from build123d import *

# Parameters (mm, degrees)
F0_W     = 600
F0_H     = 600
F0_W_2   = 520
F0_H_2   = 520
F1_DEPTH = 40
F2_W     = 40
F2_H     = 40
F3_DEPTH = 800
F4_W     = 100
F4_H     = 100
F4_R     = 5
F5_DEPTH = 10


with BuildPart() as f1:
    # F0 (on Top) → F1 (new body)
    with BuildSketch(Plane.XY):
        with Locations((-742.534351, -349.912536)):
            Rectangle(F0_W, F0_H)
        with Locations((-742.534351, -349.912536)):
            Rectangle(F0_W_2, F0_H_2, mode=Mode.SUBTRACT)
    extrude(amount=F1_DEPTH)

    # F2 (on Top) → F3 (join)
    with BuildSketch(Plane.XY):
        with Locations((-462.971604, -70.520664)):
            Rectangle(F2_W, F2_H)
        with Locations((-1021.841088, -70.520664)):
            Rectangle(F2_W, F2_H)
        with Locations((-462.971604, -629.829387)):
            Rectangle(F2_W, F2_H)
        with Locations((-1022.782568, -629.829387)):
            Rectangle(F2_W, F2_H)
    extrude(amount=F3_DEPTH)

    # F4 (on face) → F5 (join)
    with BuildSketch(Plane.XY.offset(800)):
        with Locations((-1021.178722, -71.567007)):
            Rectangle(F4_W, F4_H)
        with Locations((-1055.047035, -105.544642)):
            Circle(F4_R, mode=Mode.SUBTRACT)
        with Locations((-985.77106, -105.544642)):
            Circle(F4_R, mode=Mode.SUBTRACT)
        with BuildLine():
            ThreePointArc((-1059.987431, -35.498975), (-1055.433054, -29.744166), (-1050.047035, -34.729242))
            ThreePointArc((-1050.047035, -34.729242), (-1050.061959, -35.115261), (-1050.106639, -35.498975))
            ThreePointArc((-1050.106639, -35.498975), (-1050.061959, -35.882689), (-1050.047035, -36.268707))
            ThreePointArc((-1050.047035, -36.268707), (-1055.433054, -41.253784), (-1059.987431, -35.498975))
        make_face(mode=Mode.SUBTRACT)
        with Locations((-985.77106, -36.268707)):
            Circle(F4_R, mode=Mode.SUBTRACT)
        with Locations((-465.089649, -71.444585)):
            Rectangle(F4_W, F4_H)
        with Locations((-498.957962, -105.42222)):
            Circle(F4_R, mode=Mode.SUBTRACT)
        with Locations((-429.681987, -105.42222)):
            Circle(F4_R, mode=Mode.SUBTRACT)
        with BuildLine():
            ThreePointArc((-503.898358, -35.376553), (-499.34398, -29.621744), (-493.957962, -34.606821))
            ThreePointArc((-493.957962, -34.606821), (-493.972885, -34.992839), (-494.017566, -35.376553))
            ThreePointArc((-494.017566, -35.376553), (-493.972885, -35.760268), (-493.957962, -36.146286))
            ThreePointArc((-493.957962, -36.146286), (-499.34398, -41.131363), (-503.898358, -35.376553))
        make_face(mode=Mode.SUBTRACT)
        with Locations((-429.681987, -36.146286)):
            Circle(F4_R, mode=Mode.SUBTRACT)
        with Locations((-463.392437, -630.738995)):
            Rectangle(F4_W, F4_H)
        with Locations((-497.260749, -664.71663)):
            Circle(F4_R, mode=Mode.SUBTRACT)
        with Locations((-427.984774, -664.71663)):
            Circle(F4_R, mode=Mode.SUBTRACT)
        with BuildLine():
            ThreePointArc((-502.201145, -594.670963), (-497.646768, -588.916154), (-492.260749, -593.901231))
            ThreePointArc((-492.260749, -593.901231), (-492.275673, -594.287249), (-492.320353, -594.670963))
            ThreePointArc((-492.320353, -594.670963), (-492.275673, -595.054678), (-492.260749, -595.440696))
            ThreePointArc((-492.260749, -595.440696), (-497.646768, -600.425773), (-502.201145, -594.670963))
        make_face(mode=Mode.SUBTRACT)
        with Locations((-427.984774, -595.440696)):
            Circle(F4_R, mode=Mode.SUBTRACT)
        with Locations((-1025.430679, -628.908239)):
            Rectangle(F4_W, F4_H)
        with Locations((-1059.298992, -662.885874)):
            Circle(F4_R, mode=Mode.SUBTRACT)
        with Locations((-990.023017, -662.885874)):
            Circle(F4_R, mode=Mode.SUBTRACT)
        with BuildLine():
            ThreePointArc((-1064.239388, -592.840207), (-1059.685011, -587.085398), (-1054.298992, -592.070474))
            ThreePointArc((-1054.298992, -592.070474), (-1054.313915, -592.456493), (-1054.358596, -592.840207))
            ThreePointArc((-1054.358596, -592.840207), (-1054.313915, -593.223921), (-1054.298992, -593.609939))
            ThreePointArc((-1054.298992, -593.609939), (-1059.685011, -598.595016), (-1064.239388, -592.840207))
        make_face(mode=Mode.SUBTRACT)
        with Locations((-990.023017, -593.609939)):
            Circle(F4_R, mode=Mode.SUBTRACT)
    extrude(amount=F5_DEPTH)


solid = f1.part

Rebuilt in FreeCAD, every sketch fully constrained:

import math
import FreeCAD as App
import Part
import Sketcher

doc = App.newDocument("Part")
params = doc.addObject("Spreadsheet::Sheet", "Params")
for row, (alias, value) in enumerate([
    ("sketch1_width", "600 mm"),
    ("sketch1_width2", "520 mm"),
    ("pad1_length", "40 mm"),
    ("sketch2_width", "40 mm"),
    ("pad2_length", "800 mm"),
    ("sketch3_diameter", "10 mm"),
    ("sketch3_diameter2", "10 mm"),
    ("sketch3_diameter3", "10 mm"),
    ("sketch3_diameter4", "10 mm"),
    ("sketch3_diameter5", "10 mm"),
    ("pad3_length", "10 mm"),
], start=1):
    params.set(f"A{row}", alias)
    params.set(f"B{row}", "=" + value)
    params.setAlias(f"B{row}", alias)

body = doc.addObject("PartDesign::Body", "Body")

sketch1 = doc.addObject("Sketcher::SketchObject", "Sketch")
body.addObject(sketch1)
sketch1.AttachmentSupport = (doc.XY_Plane, [""])
sketch1.MapMode = "FlatFace"
sketch1.addGeometry(Part.LineSegment(App.Vector(-1043, -50, 0), App.Vector(-1043, -650, 0)), False)
sketch1.addGeometry(Part.LineSegment(App.Vector(-1043, -650, 0), App.Vector(-443, -650, 0)), False)
sketch1.addGeometry(Part.LineSegment(App.Vector(-443, -650, 0), App.Vector(-443, -50, 0)), False)
sketch1.addGeometry(Part.LineSegment(App.Vector(-443, -50, 0), App.Vector(-1043, -50, 0)), False)
sketch1.addGeometry(Part.LineSegment(App.Vector(-483, -610, 0), App.Vector(-1003, -610, 0)), False)
sketch1.addGeometry(Part.LineSegment(App.Vector(-1003, -610, 0), App.Vector(-1003, -90, 0)), False)
sketch1.addGeometry(Part.LineSegment(App.Vector(-1003, -90, 0), App.Vector(-483, -90, 0)), False)
sketch1.addGeometry(Part.LineSegment(App.Vector(-483, -90, 0), App.Vector(-483, -610, 0)), False)
sketch1.addConstraint(Sketcher.Constraint("Coincident", 0, 2, 1, 1))
sketch1.addConstraint(Sketcher.Constraint("Coincident", 1, 2, 2, 1))
sketch1.addConstraint(Sketcher.Constraint("Coincident", 2, 2, 3, 1))
sketch1.addConstraint(Sketcher.Constraint("Coincident", 3, 2, 0, 1))
sketch1.addConstraint(Sketcher.Constraint("Coincident", 4, 2, 5, 1))
sketch1.addConstraint(Sketcher.Constraint("Coincident", 5, 2, 6, 1))
sketch1.addConstraint(Sketcher.Constraint("Coincident", 6, 2, 7, 1))
sketch1.addConstraint(Sketcher.Constraint("Coincident", 7, 2, 4, 1))
sketch1.addConstraint(Sketcher.Constraint("Vertical", 0))
sketch1.addConstraint(Sketcher.Constraint("Horizontal", 1))
sketch1.addConstraint(Sketcher.Constraint("Vertical", 2))
sketch1.addConstraint(Sketcher.Constraint("Horizontal", 3))
sketch1.addConstraint(Sketcher.Constraint("Horizontal", 4))
sketch1.addConstraint(Sketcher.Constraint("Vertical", 5))
sketch1.addConstraint(Sketcher.Constraint("Horizontal", 6))
sketch1.addConstraint(Sketcher.Constraint("Vertical", 7))
sketch1.addConstraint(Sketcher.Constraint("Equal", 3, 0))
sketch1.addConstraint(Sketcher.Constraint("Equal", 6, 5))
sketch1.addConstraint(Sketcher.Constraint("DistanceX", 1, 1, 1, 2, 600.0))
sketch1.addConstraint(Sketcher.Constraint("DistanceX", 4, 2, 4, 1, 520.0))
sketch1.addConstraint(Sketcher.Constraint("DistanceX", 0, 2, 4, 2, 40.0))
sketch1.addConstraint(Sketcher.Constraint("DistanceY", 0, 2, 4, 2, 40.0))
sketch1.addConstraint(Sketcher.Constraint("DistanceX", 0, 2, -1, 1, 1042.534351))
sketch1.addConstraint(Sketcher.Constraint("DistanceY", 0, 2, -1, 1, 649.912536))
sketch1.setExpression("Constraints[18]", "Params.sketch1_width")
sketch1.setExpression("Constraints[19]", "Params.sketch1_width2")
pad1 = doc.addObject("PartDesign::Pad", "Pad")
body.addObject(pad1)
pad1.Profile = sketch1
pad1.setExpression("Length", "Params.pad1_length")

sketch2 = doc.addObject("Sketcher::SketchObject", "Sketch001")
body.addObject(sketch2)
sketch2.AttachmentSupport = (doc.XY_Plane, [""])
sketch2.MapMode = "FlatFace"
sketch2.addGeometry(Part.LineSegment(App.Vector(-483, -51, 0), App.Vector(-483, -91, 0)), False)
sketch2.addGeometry(Part.LineSegment(App.Vector(-483, -91, 0), App.Vector(-443, -91, 0)), False)
sketch2.addGeometry(Part.LineSegment(App.Vector(-443, -91, 0), App.Vector(-443, -51, 0)), False)
sketch2.addGeometry(Part.LineSegment(App.Vector(-443, -51, 0), App.Vector(-483, -51, 0)), False)
sketch2.addGeometry(Part.LineSegment(App.Vector(-1042, -51, 0), App.Vector(-1042, -91, 0)), False)
sketch2.addGeometry(Part.LineSegment(App.Vector(-1042, -91, 0), App.Vector(-1002, -91, 0)), False)
sketch2.addGeometry(Part.LineSegment(App.Vector(-1002, -91, 0), App.Vector(-1002, -51, 0)), False)
sketch2.addGeometry(Part.LineSegment(App.Vector(-1002, -51, 0), App.Vector(-1042, -51, 0)), False)
sketch2.addGeometry(Part.LineSegment(App.Vector(-483, -610, 0), App.Vector(-483, -650, 0)), False)
sketch2.addGeometry(Part.LineSegment(App.Vector(-483, -650, 0), App.Vector(-443, -650, 0)), False)
sketch2.addGeometry(Part.LineSegment(App.Vector(-443, -650, 0), App.Vector(-443, -610, 0)), False)
sketch2.addGeometry(Part.LineSegment(App.Vector(-443, -610, 0), App.Vector(-483, -610, 0)), False)
sketch2.addGeometry(Part.LineSegment(App.Vector(-1043, -610, 0), App.Vector(-1043, -650, 0)), False)
sketch2.addGeometry(Part.LineSegment(App.Vector(-1043, -650, 0), App.Vector(-1003, -650, 0)), False)
sketch2.addGeometry(Part.LineSegment(App.Vector(-1003, -650, 0), App.Vector(-1003, -610, 0)), False)
sketch2.addGeometry(Part.LineSegment(App.Vector(-1003, -610, 0), App.Vector(-1043, -610, 0)), False)
sketch2.addConstraint(Sketcher.Constraint("Coincident", 0, 2, 1, 1))
sketch2.addConstraint(Sketcher.Constraint("Coincident", 1, 2, 2, 1))
sketch2.addConstraint(Sketcher.Constraint("Coincident", 2, 2, 3, 1))
sketch2.addConstraint(Sketcher.Constraint("Coincident", 3, 2, 0, 1))
sketch2.addConstraint(Sketcher.Constraint("Coincident", 4, 2, 5, 1))
sketch2.addConstraint(Sketcher.Constraint("Coincident", 5, 2, 6, 1))
sketch2.addConstraint(Sketcher.Constraint("Coincident", 6, 2, 7, 1))
sketch2.addConstraint(Sketcher.Constraint("Coincident", 7, 2, 4, 1))
sketch2.addConstraint(Sketcher.Constraint("Coincident", 8, 2, 9, 1))
sketch2.addConstraint(Sketcher.Constraint("Coincident", 9, 2, 10, 1))
sketch2.addConstraint(Sketcher.Constraint("Coincident", 10, 2, 11, 1))
sketch2.addConstraint(Sketcher.Constraint("Coincident", 11, 2, 8, 1))
sketch2.addConstraint(Sketcher.Constraint("Coincident", 12, 2, 13, 1))
sketch2.addConstraint(Sketcher.Constraint("Coincident", 13, 2, 14, 1))
sketch2.addConstraint(Sketcher.Constraint("Coincident", 14, 2, 15, 1))
sketch2.addConstraint(Sketcher.Constraint("Coincident", 15, 2, 12, 1))
sketch2.addConstraint(Sketcher.Constraint("Vertical", 0))
sketch2.addConstraint(Sketcher.Constraint("Horizontal", 1))
sketch2.addConstraint(Sketcher.Constraint("Vertical", 2))
sketch2.addConstraint(Sketcher.Constraint("Horizontal", 3))
sketch2.addConstraint(Sketcher.Constraint("Vertical", 4))
sketch2.addConstraint(Sketcher.Constraint("Horizontal", 5))
sketch2.addConstraint(Sketcher.Constraint("Vertical", 6))
sketch2.addConstraint(Sketcher.Constraint("Horizontal", 7))
sketch2.addConstraint(Sketcher.Constraint("Vertical", 8))
sketch2.addConstraint(Sketcher.Constraint("Horizontal", 9))
sketch2.addConstraint(Sketcher.Constraint("Vertical", 10))
sketch2.addConstraint(Sketcher.Constraint("Horizontal", 11))
sketch2.addConstraint(Sketcher.Constraint("Vertical", 12))
sketch2.addConstraint(Sketcher.Constraint("Horizontal", 13))
sketch2.addConstraint(Sketcher.Constraint("Vertical", 14))
sketch2.addConstraint(Sketcher.Constraint("Horizontal", 15))
sketch2.addConstraint(Sketcher.Constraint("Horizontal", 1, 2, 4, 2))
sketch2.addConstraint(Sketcher.Constraint("Horizontal", 3, 2, 6, 2))
sketch2.addConstraint(Sketcher.Constraint("Horizontal", 9, 2, 12, 2))
sketch2.addConstraint(Sketcher.Constraint("Horizontal", 11, 2, 14, 2))
sketch2.addConstraint(Sketcher.Constraint("Vertical", 3, 2, 8, 2))
sketch2.addConstraint(Sketcher.Constraint("Vertical", 2, 2, 9, 2))
sketch2.addConstraint(Sketcher.Constraint("Equal", 3, 5))
sketch2.addConstraint(Sketcher.Constraint("Equal", 11, 13))
sketch2.addConstraint(Sketcher.Constraint("Equal", 15, 0))
sketch2.addConstraint(Sketcher.Constraint("Equal", 6, 8))
sketch2.addConstraint(Sketcher.Constraint("DistanceX", 1, 1, 1, 2, 40.0))
sketch2.addConstraint(Sketcher.Constraint("DistanceX", 4, 2, -1, 1, 1041.841088))
sketch2.addConstraint(Sketcher.Constraint("DistanceX", 12, 2, -1, 1, 1042.782568))
sketch2.addConstraint(Sketcher.Constraint("DistanceX", 0, 2, -1, 1, 482.971604))
sketch2.addConstraint(Sketcher.Constraint("DistanceY", 0, 2, -1, 1, 90.520664))
sketch2.addConstraint(Sketcher.Constraint("DistanceY", 8, 2, -1, 1, 649.829387))
sketch2.setExpression("Constraints[42]", "Params.sketch2_width")
pad2 = doc.addObject("PartDesign::Pad", "Pad001")
body.addObject(pad2)
pad2.Profile = sketch2
pad2.setExpression("Length", "Params.pad2_length")

sketch3 = doc.addObject("Sketcher::SketchObject", "Sketch002")
body.addObject(sketch3)
sketch3.AttachmentSupport = (doc.XY_Plane, [""])
sketch3.MapMode = "FlatFace"
sketch3.AttachmentOffset = App.Placement(App.Vector(0, 0, 800), App.Rotation())
sketch3.addGeometry(Part.LineSegment(App.Vector(-1071.178722, -21.567007, 0), App.Vector(-1071.178722, -121.567007, 0)), False)
sketch3.addGeometry(Part.LineSegment(App.Vector(-1071.178722, -121.567007, 0), App.Vector(-971.178722, -121.567007, 0)), False)
sketch3.addGeometry(Part.LineSegment(App.Vector(-971.178722, -121.567007, 0), App.Vector(-971.178722, -21.567007, 0)), False)
sketch3.addGeometry(Part.LineSegment(App.Vector(-971.178722, -21.567007, 0), App.Vector(-1071.178722, -21.567007, 0)), False)
sketch3.addGeometry(Part.Circle(App.Vector(-1055.047035, -105.544642, 0), App.Vector(0, 0, 1), 5), False)
sketch3.addGeometry(Part.Circle(App.Vector(-985.77106, -105.544642, 0), App.Vector(0, 0, 1), 5), False)
sketch3.addGeometry(Part.ArcOfCircle(Part.Circle(App.Vector(-1055.047035, -36.268707, 0), App.Vector(0, 0, 1), 5), math.radians(171.1443), math.radians(360.000004)), False)
sketch3.addGeometry(Part.ArcOfCircle(Part.Circle(App.Vector(-1055.047035, -34.729243, 0), App.Vector(0, 0, 1), 5), math.radians(0.000008), math.radians(188.8557)), False)
sketch3.addGeometry(Part.ArcOfCircle(Part.Circle(App.Vector(-1055.047281, -34.729224, 0), App.Vector(0, 0, 1), 5.000246), math.radians(-8.855478), math.radians(-0.000207)), False)
sketch3.addGeometry(Part.ArcOfCircle(Part.Circle(App.Vector(-1055.047281, -36.268726, 0), App.Vector(0, 0, 1), 5.000246), math.radians(0.000219), math.radians(8.855478)), False)
sketch3.addGeometry(Part.Circle(App.Vector(-985.77106, -36.268707, 0), App.Vector(0, 0, 1), 5), False)
sketch3.addGeometry(Part.LineSegment(App.Vector(-515.089649, -21.444585, 0), App.Vector(-515.089649, -121.444585, 0)), False)
sketch3.addGeometry(Part.LineSegment(App.Vector(-515.089649, -121.444585, 0), App.Vector(-415.089649, -121.444585, 0)), False)
sketch3.addGeometry(Part.LineSegment(App.Vector(-415.089649, -121.444585, 0), App.Vector(-415.089649, -21.444585, 0)), False)
sketch3.addGeometry(Part.LineSegment(App.Vector(-415.089649, -21.444585, 0), App.Vector(-515.089649, -21.444585, 0)), False)
sketch3.addGeometry(Part.Circle(App.Vector(-498.957962, -105.42222, 0), App.Vector(0, 0, 1), 5), False)
sketch3.addGeometry(Part.Circle(App.Vector(-429.681987, -105.42222, 0), App.Vector(0, 0, 1), 5), False)
sketch3.addGeometry(Part.ArcOfCircle(Part.Circle(App.Vector(-498.957962, -36.146286, 0), App.Vector(0, 0, 1), 5), math.radians(171.144291), math.radians(360.000002)), False)
sketch3.addGeometry(Part.ArcOfCircle(Part.Circle(App.Vector(-498.957962, -34.606821, 0), App.Vector(0, 0, 1), 5), math.radians(-0.000003), math.radians(188.855699)), False)
sketch3.addGeometry(Part.ArcOfCircle(Part.Circle(App.Vector(-498.957875, -34.606828, 0), App.Vector(0, 0, 1), 4.999913), math.radians(-8.855773), math.radians(0.000077)), False)
sketch3.addGeometry(Part.ArcOfCircle(Part.Circle(App.Vector(-498.957901, -36.14628, 0), App.Vector(0, 0, 1), 4.999939), math.radians(-0.000066), math.radians(8.85575)), False)
sketch3.addGeometry(Part.Circle(App.Vector(-429.681987, -36.146286, 0), App.Vector(0, 0, 1), 5), False)
sketch3.addGeometry(Part.LineSegment(App.Vector(-513.392437, -580.738995, 0), App.Vector(-513.392437, -680.738995, 0)), False)
sketch3.addGeometry(Part.LineSegment(App.Vector(-513.392437, -680.738995, 0), App.Vector(-413.392437, -680.738995, 0)), False)
sketch3.addGeometry(Part.LineSegment(App.Vector(-413.392437, -680.738995, 0), App.Vector(-413.392437, -580.738995, 0)), False)
sketch3.addGeometry(Part.LineSegment(App.Vector(-413.392437, -580.738995, 0), App.Vector(-513.392437, -580.738995, 0)), False)
sketch3.addGeometry(Part.Circle(App.Vector(-497.260749, -664.71663, 0), App.Vector(0, 0, 1), 5), False)
sketch3.addGeometry(Part.Circle(App.Vector(-427.984774, -664.71663, 0), App.Vector(0, 0, 1), 5), False)
sketch3.addGeometry(Part.ArcOfCircle(Part.Circle(App.Vector(-497.260749, -595.440696, 0), App.Vector(0, 0, 1), 5), math.radians(171.14429), math.radians(360.000003)), False)
sketch3.addGeometry(Part.ArcOfCircle(Part.Circle(App.Vector(-497.260749, -593.901231, 0), App.Vector(0, 0, 1), 5), math.radians(-0.000004), math.radians(188.8557)), False)
sketch3.addGeometry(Part.ArcOfCircle(Part.Circle(App.Vector(-497.260995, -593.901212, 0), App.Vector(0, 0, 1), 5.000246), math.radians(-8.855478), math.radians(-0.000219)), False)
sketch3.addGeometry(Part.ArcOfCircle(Part.Circle(App.Vector(-497.261021, -595.440716, 0), App.Vector(0, 0, 1), 5.000272), math.radians(0.00023), math.radians(8.855455)), False)
sketch3.addGeometry(Part.Circle(App.Vector(-427.984774, -595.440696, 0), App.Vector(0, 0, 1), 5), False)
sketch3.addGeometry(Part.LineSegment(App.Vector(-1075.430679, -578.908239, 0), App.Vector(-1075.430679, -678.908239, 0)), False)
sketch3.addGeometry(Part.LineSegment(App.Vector(-1075.430679, -678.908239, 0), App.Vector(-975.430679, -678.908239, 0)), False)
sketch3.addGeometry(Part.LineSegment(App.Vector(-975.430679, -678.908239, 0), App.Vector(-975.430679, -578.908239, 0)), False)
sketch3.addGeometry(Part.LineSegment(App.Vector(-975.430679, -578.908239, 0), App.Vector(-1075.430679, -578.908239, 0)), False)
sketch3.addGeometry(Part.Circle(App.Vector(-1059.298992, -662.885874, 0), App.Vector(0, 0, 1), 5), False)
sketch3.addGeometry(Part.Circle(App.Vector(-990.023017, -662.885874, 0), App.Vector(0, 0, 1), 5), False)
sketch3.addGeometry(Part.ArcOfCircle(Part.Circle(App.Vector(-1059.298992, -593.609939, 0), App.Vector(0, 0, 1), 5), math.radians(171.1443), math.radians(360.000004)), False)
sketch3.addGeometry(Part.ArcOfCircle(Part.Circle(App.Vector(-1059.298992, -592.070475, 0), App.Vector(0, 0, 1), 5), math.radians(0.000008), math.radians(188.8557)), False)
sketch3.addGeometry(Part.ArcOfCircle(Part.Circle(App.Vector(-1059.298905, -592.070482, 0), App.Vector(0, 0, 1), 4.999913), math.radians(-8.855773), math.radians(0.000088)), False)
sketch3.addGeometry(Part.ArcOfCircle(Part.Circle(App.Vector(-1059.298905, -593.609932, 0), App.Vector(0, 0, 1), 4.999913), math.radians(-0.000077), math.radians(8.855773)), False)
sketch3.addGeometry(Part.Circle(App.Vector(-990.023017, -593.609939, 0), App.Vector(0, 0, 1), 5), False)
sketch3.addConstraint(Sketcher.Constraint("Coincident", 0, 2, 1, 1))
sketch3.addConstraint(Sketcher.Constraint("Coincident", 1, 2, 2, 1))
sketch3.addConstraint(Sketcher.Constraint("Coincident", 2, 2, 3, 1))
sketch3.addConstraint(Sketcher.Constraint("Coincident", 3, 2, 0, 1))
sketch3.addConstraint(Sketcher.Constraint("Coincident", 6, 1, 7, 2))
sketch3.addConstraint(Sketcher.Constraint("Coincident", 7, 1, 8, 2))
sketch3.addConstraint(Sketcher.Constraint("Coincident", 8, 1, 9, 2))
sketch3.addConstraint(Sketcher.Constraint("Coincident", 9, 1, 6, 2))
sketch3.addConstraint(Sketcher.Constraint("Coincident", 11, 2, 12, 1))
sketch3.addConstraint(Sketcher.Constraint("Coincident", 12, 2, 13, 1))
sketch3.addConstraint(Sketcher.Constraint("Coincident", 13, 2, 14, 1))
sketch3.addConstraint(Sketcher.Constraint("Coincident", 14, 2, 11, 1))
sketch3.addConstraint(Sketcher.Constraint("Coincident", 17, 1, 18, 2))
sketch3.addConstraint(Sketcher.Constraint("Coincident", 18, 1, 19, 2))
sketch3.addConstraint(Sketcher.Constraint("Coincident", 19, 1, 20, 2))
sketch3.addConstraint(Sketcher.Constraint("Coincident", 20, 1, 17, 2))
sketch3.addConstraint(Sketcher.Constraint("Coincident", 22, 2, 23, 1))
sketch3.addConstraint(Sketcher.Constraint("Coincident", 23, 2, 24, 1))
sketch3.addConstraint(Sketcher.Constraint("Coincident", 24, 2, 25, 1))
sketch3.addConstraint(Sketcher.Constraint("Coincident", 25, 2, 22, 1))
sketch3.addConstraint(Sketcher.Constraint("Coincident", 28, 1, 29, 2))
sketch3.addConstraint(Sketcher.Constraint("Coincident", 29, 1, 30, 2))
sketch3.addConstraint(Sketcher.Constraint("Coincident", 30, 1, 31, 2))
sketch3.addConstraint(Sketcher.Constraint("Coincident", 31, 1, 28, 2))
sketch3.addConstraint(Sketcher.Constraint("Coincident", 33, 2, 34, 1))
sketch3.addConstraint(Sketcher.Constraint("Coincident", 34, 2, 35, 1))
sketch3.addConstraint(Sketcher.Constraint("Coincident", 35, 2, 36, 1))
sketch3.addConstraint(Sketcher.Constraint("Coincident", 36, 2, 33, 1))
sketch3.addConstraint(Sketcher.Constraint("Coincident", 39, 1, 40, 2))
sketch3.addConstraint(Sketcher.Constraint("Coincident", 40, 1, 41, 2))
sketch3.addConstraint(Sketcher.Constraint("Coincident", 41, 1, 42, 2))
sketch3.addConstraint(Sketcher.Constraint("Coincident", 42, 1, 39, 2))
sketch3.addConstraint(Sketcher.Constraint("Vertical", 0))
sketch3.addConstraint(Sketcher.Constraint("Horizontal", 1))
sketch3.addConstraint(Sketcher.Constraint("Vertical", 2))
sketch3.addConstraint(Sketcher.Constraint("Horizontal", 3))
sketch3.addConstraint(Sketcher.Constraint("Vertical", 11))
sketch3.addConstraint(Sketcher.Constraint("Horizontal", 12))
sketch3.addConstraint(Sketcher.Constraint("Vertical", 13))
sketch3.addConstraint(Sketcher.Constraint("Horizontal", 14))
sketch3.addConstraint(Sketcher.Constraint("Vertical", 22))
sketch3.addConstraint(Sketcher.Constraint("Horizontal", 23))
sketch3.addConstraint(Sketcher.Constraint("Vertical", 24))
sketch3.addConstraint(Sketcher.Constraint("Horizontal", 25))
sketch3.addConstraint(Sketcher.Constraint("Vertical", 33))
sketch3.addConstraint(Sketcher.Constraint("Horizontal", 34))
sketch3.addConstraint(Sketcher.Constraint("Vertical", 35))
sketch3.addConstraint(Sketcher.Constraint("Horizontal", 36))
sketch3.addConstraint(Sketcher.Constraint("Diameter", 4, 10.0))
sketch3.addConstraint(Sketcher.Constraint("Diameter", 5, 10.0))
sketch3.addConstraint(Sketcher.Constraint("Diameter", 10, 10.0))
sketch3.addConstraint(Sketcher.Constraint("Diameter", 15, 10.0))
sketch3.addConstraint(Sketcher.Constraint("Diameter", 16, 10.0))
sketch3.addConstraint(Sketcher.Constraint("Diameter", 21, 10.0))
sketch3.addConstraint(Sketcher.Constraint("Diameter", 26, 10.0))
sketch3.addConstraint(Sketcher.Constraint("Diameter", 27, 10.0))
sketch3.addConstraint(Sketcher.Constraint("Diameter", 32, 10.0))
sketch3.addConstraint(Sketcher.Constraint("Diameter", 37, 10.0))
sketch3.addConstraint(Sketcher.Constraint("Diameter", 38, 10.0))
sketch3.addConstraint(Sketcher.Constraint("Diameter", 43, 10.0))
sketch3.addConstraint(Sketcher.Constraint("Radius", 6, 5.0))
sketch3.addConstraint(Sketcher.Constraint("Radius", 7, 5.0))
sketch3.addConstraint(Sketcher.Constraint("Radius", 17, 5.0))
sketch3.addConstraint(Sketcher.Constraint("Radius", 18, 5.0))
sketch3.addConstraint(Sketcher.Constraint("Radius", 28, 5.0))
sketch3.addConstraint(Sketcher.Constraint("Radius", 29, 5.0))
sketch3.addConstraint(Sketcher.Constraint("Radius", 39, 5.0))
sketch3.addConstraint(Sketcher.Constraint("Radius", 40, 5.0))
sketch3.addConstraint(Sketcher.Constraint("DistanceX", 1, 1, 1, 2, 100.0))
sketch3.addConstraint(Sketcher.Constraint("DistanceX", 12, 1, 12, 2, 100.0))
sketch3.addConstraint(Sketcher.Constraint("DistanceX", 23, 1, 23, 2, 100.0))
sketch3.addConstraint(Sketcher.Constraint("DistanceX", 34, 1, 34, 2, 100.0))
sketch3.addConstraint(Sketcher.Constraint("DistanceY", 0, 2, 0, 1, 100.0))
sketch3.addConstraint(Sketcher.Constraint("DistanceY", 11, 2, 11, 1, 100.0))
sketch3.addConstraint(Sketcher.Constraint("DistanceY", 22, 2, 22, 1, 100.0))
sketch3.addConstraint(Sketcher.Constraint("DistanceY", 33, 2, 33, 1, 100.0))
sketch3.addConstraint(Sketcher.Constraint("DistanceX", 6, 3, 7, 1, 5.0))
sketch3.addConstraint(Sketcher.Constraint("DistanceX", 17, 3, 18, 1, 5.0))
sketch3.addConstraint(Sketcher.Constraint("DistanceX", 28, 3, 29, 1, 5.0))
sketch3.addConstraint(Sketcher.Constraint("DistanceX", 39, 3, 40, 1, 5.0))
sketch3.addConstraint(Sketcher.Constraint("Radius", 20, 4.999939))
sketch3.addConstraint(Sketcher.Constraint("Radius", 8, 5.000246))
sketch3.addConstraint(Sketcher.Constraint("Radius", 9, 5.000246))
sketch3.addConstraint(Sketcher.Constraint("Radius", 19, 4.999913))
sketch3.addConstraint(Sketcher.Constraint("Radius", 30, 5.000246))
sketch3.addConstraint(Sketcher.Constraint("Radius", 31, 5.000272))
sketch3.addConstraint(Sketcher.Constraint("Radius", 41, 4.999913))
sketch3.addConstraint(Sketcher.Constraint("Radius", 42, 4.999913))
sketch3.addConstraint(Sketcher.Constraint("DistanceX", 20, 3, -1, 1, 498.957901))
sketch3.addConstraint(Sketcher.Constraint("DistanceY", 4, 3, 7, 3, 70.815399))
sketch3.addConstraint(Sketcher.Constraint("DistanceY", 5, 3, 7, 3, 70.815399))
sketch3.addConstraint(Sketcher.Constraint("DistanceX", 5, 3, 15, 3, 486.813098))
sketch3.addConstraint(Sketcher.Constraint("DistanceX", 10, 3, 15, 3, 486.813098))
sketch3.addConstraint(Sketcher.Constraint("DistanceY", 15, 3, 18, 3, 70.815399))
sketch3.addConstraint(Sketcher.Constraint("DistanceY", 16, 3, 18, 3, 70.815399))
sketch3.addConstraint(Sketcher.Constraint("DistanceY", 26, 3, 29, 3, 70.815399))
sketch3.addConstraint(Sketcher.Constraint("DistanceY", 27, 3, 29, 3, 70.815399))
sketch3.addConstraint(Sketcher.Constraint("DistanceY", 37, 3, 40, 3, 70.815399))
sketch3.addConstraint(Sketcher.Constraint("DistanceY", 38, 3, 40, 3, 70.815399))
sketch3.addConstraint(Sketcher.Constraint("DistanceY", 0, 2, 6, 3, 85.2983))
sketch3.addConstraint(Sketcher.Constraint("DistanceY", 1, 2, 10, 3, 85.2983))
sketch3.addConstraint(Sketcher.Constraint("DistanceY", 11, 2, 17, 3, 85.298299))
sketch3.addConstraint(Sketcher.Constraint("DistanceY", 12, 2, 21, 3, 85.298299))
sketch3.addConstraint(Sketcher.Constraint("DistanceY", 22, 2, 28, 3, 85.298299))
sketch3.addConstraint(Sketcher.Constraint("DistanceY", 23, 2, 32, 3, 85.298299))
sketch3.addConstraint(Sketcher.Constraint("DistanceY", 33, 2, 39, 3, 85.2983))
sketch3.addConstraint(Sketcher.Constraint("DistanceY", 34, 2, 43, 3, 85.2983))
sketch3.addConstraint(Sketcher.Constraint("DistanceY", 4, 3, -1, 1, 105.544642))
sketch3.addConstraint(Sketcher.Constraint("DistanceX", 5, 3, -1, 1, 985.77106))
sketch3.addConstraint(Sketcher.Constraint("DistanceX", 8, 3, -1, 1, 1055.047281))
sketch3.addConstraint(Sketcher.Constraint("DistanceY", 15, 3, -1, 1, 105.42222))
sketch3.addConstraint(Sketcher.Constraint("DistanceY", 20, 3, -1, 1, 36.14628))
sketch3.addConstraint(Sketcher.Constraint("DistanceX", 26, 3, -1, 1, 497.260749))
sketch3.addConstraint(Sketcher.Constraint("DistanceY", 26, 3, -1, 1, 664.71663))
sketch3.addConstraint(Sketcher.Constraint("DistanceX", 28, 3, -1, 1, 497.260749))
sketch3.addConstraint(Sketcher.Constraint("DistanceY", 30, 3, -1, 1, 593.901212))
sketch3.addConstraint(Sketcher.Constraint("DistanceX", 37, 3, -1, 1, 1059.298992))
sketch3.addConstraint(Sketcher.Constraint("DistanceY", 39, 3, -1, 1, 593.609939))
sketch3.addConstraint(Sketcher.Constraint("DistanceY", 41, 3, -1, 1, 592.070482))
sketch3.addConstraint(Sketcher.Constraint("DistanceX", 0, 2, -1, 1, 1071.178722))
sketch3.addConstraint(Sketcher.Constraint("DistanceX", 6, 1, -1, 1, 1059.987431))
sketch3.addConstraint(Sketcher.Constraint("DistanceX", 8, 1, -1, 1, 1050.106639))
sketch3.addConstraint(Sketcher.Constraint("DistanceX", 11, 2, -1, 1, 515.089649))
sketch3.addConstraint(Sketcher.Constraint("DistanceX", 17, 1, -1, 1, 503.898358))
sketch3.addConstraint(Sketcher.Constraint("DistanceY", 18, 1, -1, 1, 34.606821))
sketch3.addConstraint(Sketcher.Constraint("DistanceY", 29, 1, -1, 1, 593.901231))
sketch3.addConstraint(Sketcher.Constraint("DistanceX", 33, 2, -1, 1, 1075.430679))
sketch3.addConstraint(Sketcher.Constraint("DistanceX", 39, 1, -1, 1, 1064.239388))
sketch3.addConstraint(Sketcher.Constraint("DistanceX", 40, 1, -1, 1, 1054.298992))
sketch3.addConstraint(Sketcher.Constraint("DistanceY", 42, 1, -1, 1, 593.609939))
sketch3.addConstraint(Sketcher.Constraint("DistanceY", 4, 3, 8, 3, 70.815418))
sketch3.addConstraint(Sketcher.Constraint("DistanceX", 4, 3, 16, 3, 625.365048))
sketch3.addConstraint(Sketcher.Constraint("DistanceX", 6, 3, 16, 3, 625.365048))
sketch3.addConstraint(Sketcher.Constraint("DistanceY", 17, 3, 19, 3, 1.539458))
sketch3.addConstraint(Sketcher.Constraint("DistanceX", 19, 3, 21, 3, 69.275888))
sketch3.addConstraint(Sketcher.Constraint("DistanceY", 28, 3, 17, 3, 559.29441))
sketch3.addConstraint(Sketcher.Constraint("DistanceX", 30, 3, 27, 3, 69.276221))
sketch3.addConstraint(Sketcher.Constraint("DistanceX", 30, 3, 32, 3, 69.276221))
sketch3.addConstraint(Sketcher.Constraint("DistanceX", 38, 3, 26, 3, 492.762268))
sketch3.addConstraint(Sketcher.Constraint("DistanceY", 42, 3, 41, 3, 1.539451))
sketch3.addConstraint(Sketcher.Constraint("DistanceX", 42, 3, 43, 3, 69.275888))
sketch3.addConstraint(Sketcher.Constraint("DistanceY", 20, 1, 19, 3, 1.539458))
sketch3.addConstraint(Sketcher.Constraint("DistanceY", 22, 2, 31, 3, 85.298279))
sketch3.addConstraint(Sketcher.Constraint("DistanceX", 22, 2, 30, 3, 16.131442))
sketch3.addConstraint(Sketcher.Constraint("DistanceY", 42, 3, 40, 1, 1.539458))
sketch3.addConstraint(Sketcher.Constraint("DistanceY", 7, 1, -1, 1, 34.729242))
sketch3.addConstraint(Sketcher.Constraint("DistanceY", 9, 1, -1, 1, 36.268707))
sketch3.addConstraint(Sketcher.Constraint("DistanceY", 31, 1, -1, 1, 595.440696))
sketch3.setExpression("Constraints[48]", "Params.sketch3_diameter")
sketch3.setExpression("Constraints[49]", "Params.sketch3_diameter2")
sketch3.setExpression("Constraints[50]", "Params.sketch3_diameter3")
sketch3.setExpression("Constraints[51]", "Params.sketch3_diameter4")
sketch3.setExpression("Constraints[52]", "Params.sketch3_diameter5")
pad3 = doc.addObject("PartDesign::Pad", "Pad002")
body.addObject(pad3)
pad3.Profile = sketch3
pad3.setExpression("Length", "Params.pad3_length")

doc.recompute()
